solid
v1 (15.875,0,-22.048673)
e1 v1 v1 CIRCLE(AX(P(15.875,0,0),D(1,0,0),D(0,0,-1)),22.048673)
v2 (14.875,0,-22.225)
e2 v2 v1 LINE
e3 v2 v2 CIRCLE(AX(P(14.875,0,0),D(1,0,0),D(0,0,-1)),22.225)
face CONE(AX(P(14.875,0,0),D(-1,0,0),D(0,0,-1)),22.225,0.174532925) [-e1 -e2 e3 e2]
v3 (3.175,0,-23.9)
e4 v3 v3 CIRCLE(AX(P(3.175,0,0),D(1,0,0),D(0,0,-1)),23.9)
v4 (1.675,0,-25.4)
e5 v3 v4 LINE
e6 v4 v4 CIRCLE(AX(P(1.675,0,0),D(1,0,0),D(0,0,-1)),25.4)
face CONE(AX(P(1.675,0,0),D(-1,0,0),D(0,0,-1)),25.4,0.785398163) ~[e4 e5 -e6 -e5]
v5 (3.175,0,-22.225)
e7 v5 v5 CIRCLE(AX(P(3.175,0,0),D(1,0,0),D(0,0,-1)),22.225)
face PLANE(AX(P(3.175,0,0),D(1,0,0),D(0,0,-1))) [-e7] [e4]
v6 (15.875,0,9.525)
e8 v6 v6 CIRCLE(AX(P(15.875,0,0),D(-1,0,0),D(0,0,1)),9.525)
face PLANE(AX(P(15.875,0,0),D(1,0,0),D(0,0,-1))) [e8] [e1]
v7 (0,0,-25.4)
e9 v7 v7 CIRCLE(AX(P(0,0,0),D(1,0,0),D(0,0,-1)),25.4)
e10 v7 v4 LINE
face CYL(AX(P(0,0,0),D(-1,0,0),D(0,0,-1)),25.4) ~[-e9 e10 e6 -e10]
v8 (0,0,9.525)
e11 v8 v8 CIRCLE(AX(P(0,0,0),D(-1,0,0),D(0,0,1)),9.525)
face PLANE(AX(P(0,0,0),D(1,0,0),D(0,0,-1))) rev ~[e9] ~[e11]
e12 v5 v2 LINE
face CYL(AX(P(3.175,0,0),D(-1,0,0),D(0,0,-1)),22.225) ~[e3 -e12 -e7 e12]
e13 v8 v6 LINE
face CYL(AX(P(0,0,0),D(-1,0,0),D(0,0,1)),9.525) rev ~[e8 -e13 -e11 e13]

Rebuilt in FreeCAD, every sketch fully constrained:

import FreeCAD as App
import Part
import Sketcher

V = App.Vector
Q = App.Units.Quantity


def edges_at(feature, points):
    """Names of the edges that pass closest to the given points."""
    edges = feature.Shape.Edges
    near = lambda p: min(range(len(edges)), key=lambda i: edges[i].distToShape(Part.Vertex(*p))[0])
    return sorted({f"Edge{near(p) + 1}" for p in points})

doc = App.newDocument("Part")
body = doc.addObject("PartDesign::Body", "Body")

# Sketch on YZ plane
sketch1 = doc.addObject("Sketcher::SketchObject", "Sketch")
body.addObject(sketch1)
sketch1.AttachmentSupport = (doc.YZ_Plane, [""])
sketch1.MapMode = "FlatFace"
sketch1.addGeometry(Part.Circle(V(0, 0, 0), V(0, 0, 1), 25), False)
sketch1.addConstraint(Sketcher.Constraint("Coincident", 0, 3, -1, 1))
sketch1.addConstraint(Sketcher.Constraint("Diameter", 0, Q("2 in")))
pad1 = doc.addObject("PartDesign::Pad", "Pad")
body.addObject(pad1)
pad1.Profile = sketch1
pad1.Length = Q("0.125 in")

# Sketch on YZ plane
sketch2 = doc.addObject("Sketcher::SketchObject", "Sketch001")
body.addObject(sketch2)
sketch2.AttachmentSupport = (doc.YZ_Plane, [""])
sketch2.MapMode = "FlatFace"
sketch2.AttachmentOffset = App.Placement(V(0, 0, 0.125 * 25.4), App.Rotation())
sketch2.addGeometry(Part.Circle(V(0, 0, 0), V(0, 0, 1), 22), False)
sketch2.addConstraint(Sketcher.Constraint("Coincident", 0, 3, -1, 1))
sketch2.addConstraint(Sketcher.Constraint("Diameter", 0, Q("1.75 in")))
pad2 = doc.addObject("PartDesign::Pad", "Pad001")
body.addObject(pad2)
pad2.Profile = sketch2
pad2.Length = Q("0.5 in")

# Sketch on YZ plane
sketch3 = doc.addObject("Sketcher::SketchObject", "Sketch002")
body.addObject(sketch3)
sketch3.AttachmentSupport = (doc.YZ_Plane, [""])
sketch3.MapMode = "FlatFace"
sketch3.addGeometry(Part.Circle(V(0, 0, 0), V(0, 0, 1), 10), False)
sketch3.addConstraint(Sketcher.Constraint("Coincident", 0, 3, -1, 1))
sketch3.addConstraint(Sketcher.Constraint("Diameter", 0, Q("0.75 in")))
pocket1 = doc.addObject("PartDesign::Pocket", "Pocket")
body.addObject(pocket1)
pocket1.Profile = sketch3
pocket1.Type = "ThroughAll"
pocket1.Reversed = True
doc.recompute()

chamfer = doc.addObject("PartDesign::Chamfer", "Chamfer")
body.addObject(chamfer)
chamfer.Base = (pocket1, edges_at(pocket1, [(15.875, 0, 22.225)]))
chamfer.ChamferType = "Two distances"
chamfer.Size = 1
chamfer.Size2 = 0.176327
doc.recompute()

chamfer2 = doc.addObject("PartDesign::Chamfer", "Chamfer001")
body.addObject(chamfer2)
chamfer2.Base = (chamfer, edges_at(chamfer, [(3.175, 0, 25.4)]))
chamfer2.Size = 1.5

doc.recompute()
